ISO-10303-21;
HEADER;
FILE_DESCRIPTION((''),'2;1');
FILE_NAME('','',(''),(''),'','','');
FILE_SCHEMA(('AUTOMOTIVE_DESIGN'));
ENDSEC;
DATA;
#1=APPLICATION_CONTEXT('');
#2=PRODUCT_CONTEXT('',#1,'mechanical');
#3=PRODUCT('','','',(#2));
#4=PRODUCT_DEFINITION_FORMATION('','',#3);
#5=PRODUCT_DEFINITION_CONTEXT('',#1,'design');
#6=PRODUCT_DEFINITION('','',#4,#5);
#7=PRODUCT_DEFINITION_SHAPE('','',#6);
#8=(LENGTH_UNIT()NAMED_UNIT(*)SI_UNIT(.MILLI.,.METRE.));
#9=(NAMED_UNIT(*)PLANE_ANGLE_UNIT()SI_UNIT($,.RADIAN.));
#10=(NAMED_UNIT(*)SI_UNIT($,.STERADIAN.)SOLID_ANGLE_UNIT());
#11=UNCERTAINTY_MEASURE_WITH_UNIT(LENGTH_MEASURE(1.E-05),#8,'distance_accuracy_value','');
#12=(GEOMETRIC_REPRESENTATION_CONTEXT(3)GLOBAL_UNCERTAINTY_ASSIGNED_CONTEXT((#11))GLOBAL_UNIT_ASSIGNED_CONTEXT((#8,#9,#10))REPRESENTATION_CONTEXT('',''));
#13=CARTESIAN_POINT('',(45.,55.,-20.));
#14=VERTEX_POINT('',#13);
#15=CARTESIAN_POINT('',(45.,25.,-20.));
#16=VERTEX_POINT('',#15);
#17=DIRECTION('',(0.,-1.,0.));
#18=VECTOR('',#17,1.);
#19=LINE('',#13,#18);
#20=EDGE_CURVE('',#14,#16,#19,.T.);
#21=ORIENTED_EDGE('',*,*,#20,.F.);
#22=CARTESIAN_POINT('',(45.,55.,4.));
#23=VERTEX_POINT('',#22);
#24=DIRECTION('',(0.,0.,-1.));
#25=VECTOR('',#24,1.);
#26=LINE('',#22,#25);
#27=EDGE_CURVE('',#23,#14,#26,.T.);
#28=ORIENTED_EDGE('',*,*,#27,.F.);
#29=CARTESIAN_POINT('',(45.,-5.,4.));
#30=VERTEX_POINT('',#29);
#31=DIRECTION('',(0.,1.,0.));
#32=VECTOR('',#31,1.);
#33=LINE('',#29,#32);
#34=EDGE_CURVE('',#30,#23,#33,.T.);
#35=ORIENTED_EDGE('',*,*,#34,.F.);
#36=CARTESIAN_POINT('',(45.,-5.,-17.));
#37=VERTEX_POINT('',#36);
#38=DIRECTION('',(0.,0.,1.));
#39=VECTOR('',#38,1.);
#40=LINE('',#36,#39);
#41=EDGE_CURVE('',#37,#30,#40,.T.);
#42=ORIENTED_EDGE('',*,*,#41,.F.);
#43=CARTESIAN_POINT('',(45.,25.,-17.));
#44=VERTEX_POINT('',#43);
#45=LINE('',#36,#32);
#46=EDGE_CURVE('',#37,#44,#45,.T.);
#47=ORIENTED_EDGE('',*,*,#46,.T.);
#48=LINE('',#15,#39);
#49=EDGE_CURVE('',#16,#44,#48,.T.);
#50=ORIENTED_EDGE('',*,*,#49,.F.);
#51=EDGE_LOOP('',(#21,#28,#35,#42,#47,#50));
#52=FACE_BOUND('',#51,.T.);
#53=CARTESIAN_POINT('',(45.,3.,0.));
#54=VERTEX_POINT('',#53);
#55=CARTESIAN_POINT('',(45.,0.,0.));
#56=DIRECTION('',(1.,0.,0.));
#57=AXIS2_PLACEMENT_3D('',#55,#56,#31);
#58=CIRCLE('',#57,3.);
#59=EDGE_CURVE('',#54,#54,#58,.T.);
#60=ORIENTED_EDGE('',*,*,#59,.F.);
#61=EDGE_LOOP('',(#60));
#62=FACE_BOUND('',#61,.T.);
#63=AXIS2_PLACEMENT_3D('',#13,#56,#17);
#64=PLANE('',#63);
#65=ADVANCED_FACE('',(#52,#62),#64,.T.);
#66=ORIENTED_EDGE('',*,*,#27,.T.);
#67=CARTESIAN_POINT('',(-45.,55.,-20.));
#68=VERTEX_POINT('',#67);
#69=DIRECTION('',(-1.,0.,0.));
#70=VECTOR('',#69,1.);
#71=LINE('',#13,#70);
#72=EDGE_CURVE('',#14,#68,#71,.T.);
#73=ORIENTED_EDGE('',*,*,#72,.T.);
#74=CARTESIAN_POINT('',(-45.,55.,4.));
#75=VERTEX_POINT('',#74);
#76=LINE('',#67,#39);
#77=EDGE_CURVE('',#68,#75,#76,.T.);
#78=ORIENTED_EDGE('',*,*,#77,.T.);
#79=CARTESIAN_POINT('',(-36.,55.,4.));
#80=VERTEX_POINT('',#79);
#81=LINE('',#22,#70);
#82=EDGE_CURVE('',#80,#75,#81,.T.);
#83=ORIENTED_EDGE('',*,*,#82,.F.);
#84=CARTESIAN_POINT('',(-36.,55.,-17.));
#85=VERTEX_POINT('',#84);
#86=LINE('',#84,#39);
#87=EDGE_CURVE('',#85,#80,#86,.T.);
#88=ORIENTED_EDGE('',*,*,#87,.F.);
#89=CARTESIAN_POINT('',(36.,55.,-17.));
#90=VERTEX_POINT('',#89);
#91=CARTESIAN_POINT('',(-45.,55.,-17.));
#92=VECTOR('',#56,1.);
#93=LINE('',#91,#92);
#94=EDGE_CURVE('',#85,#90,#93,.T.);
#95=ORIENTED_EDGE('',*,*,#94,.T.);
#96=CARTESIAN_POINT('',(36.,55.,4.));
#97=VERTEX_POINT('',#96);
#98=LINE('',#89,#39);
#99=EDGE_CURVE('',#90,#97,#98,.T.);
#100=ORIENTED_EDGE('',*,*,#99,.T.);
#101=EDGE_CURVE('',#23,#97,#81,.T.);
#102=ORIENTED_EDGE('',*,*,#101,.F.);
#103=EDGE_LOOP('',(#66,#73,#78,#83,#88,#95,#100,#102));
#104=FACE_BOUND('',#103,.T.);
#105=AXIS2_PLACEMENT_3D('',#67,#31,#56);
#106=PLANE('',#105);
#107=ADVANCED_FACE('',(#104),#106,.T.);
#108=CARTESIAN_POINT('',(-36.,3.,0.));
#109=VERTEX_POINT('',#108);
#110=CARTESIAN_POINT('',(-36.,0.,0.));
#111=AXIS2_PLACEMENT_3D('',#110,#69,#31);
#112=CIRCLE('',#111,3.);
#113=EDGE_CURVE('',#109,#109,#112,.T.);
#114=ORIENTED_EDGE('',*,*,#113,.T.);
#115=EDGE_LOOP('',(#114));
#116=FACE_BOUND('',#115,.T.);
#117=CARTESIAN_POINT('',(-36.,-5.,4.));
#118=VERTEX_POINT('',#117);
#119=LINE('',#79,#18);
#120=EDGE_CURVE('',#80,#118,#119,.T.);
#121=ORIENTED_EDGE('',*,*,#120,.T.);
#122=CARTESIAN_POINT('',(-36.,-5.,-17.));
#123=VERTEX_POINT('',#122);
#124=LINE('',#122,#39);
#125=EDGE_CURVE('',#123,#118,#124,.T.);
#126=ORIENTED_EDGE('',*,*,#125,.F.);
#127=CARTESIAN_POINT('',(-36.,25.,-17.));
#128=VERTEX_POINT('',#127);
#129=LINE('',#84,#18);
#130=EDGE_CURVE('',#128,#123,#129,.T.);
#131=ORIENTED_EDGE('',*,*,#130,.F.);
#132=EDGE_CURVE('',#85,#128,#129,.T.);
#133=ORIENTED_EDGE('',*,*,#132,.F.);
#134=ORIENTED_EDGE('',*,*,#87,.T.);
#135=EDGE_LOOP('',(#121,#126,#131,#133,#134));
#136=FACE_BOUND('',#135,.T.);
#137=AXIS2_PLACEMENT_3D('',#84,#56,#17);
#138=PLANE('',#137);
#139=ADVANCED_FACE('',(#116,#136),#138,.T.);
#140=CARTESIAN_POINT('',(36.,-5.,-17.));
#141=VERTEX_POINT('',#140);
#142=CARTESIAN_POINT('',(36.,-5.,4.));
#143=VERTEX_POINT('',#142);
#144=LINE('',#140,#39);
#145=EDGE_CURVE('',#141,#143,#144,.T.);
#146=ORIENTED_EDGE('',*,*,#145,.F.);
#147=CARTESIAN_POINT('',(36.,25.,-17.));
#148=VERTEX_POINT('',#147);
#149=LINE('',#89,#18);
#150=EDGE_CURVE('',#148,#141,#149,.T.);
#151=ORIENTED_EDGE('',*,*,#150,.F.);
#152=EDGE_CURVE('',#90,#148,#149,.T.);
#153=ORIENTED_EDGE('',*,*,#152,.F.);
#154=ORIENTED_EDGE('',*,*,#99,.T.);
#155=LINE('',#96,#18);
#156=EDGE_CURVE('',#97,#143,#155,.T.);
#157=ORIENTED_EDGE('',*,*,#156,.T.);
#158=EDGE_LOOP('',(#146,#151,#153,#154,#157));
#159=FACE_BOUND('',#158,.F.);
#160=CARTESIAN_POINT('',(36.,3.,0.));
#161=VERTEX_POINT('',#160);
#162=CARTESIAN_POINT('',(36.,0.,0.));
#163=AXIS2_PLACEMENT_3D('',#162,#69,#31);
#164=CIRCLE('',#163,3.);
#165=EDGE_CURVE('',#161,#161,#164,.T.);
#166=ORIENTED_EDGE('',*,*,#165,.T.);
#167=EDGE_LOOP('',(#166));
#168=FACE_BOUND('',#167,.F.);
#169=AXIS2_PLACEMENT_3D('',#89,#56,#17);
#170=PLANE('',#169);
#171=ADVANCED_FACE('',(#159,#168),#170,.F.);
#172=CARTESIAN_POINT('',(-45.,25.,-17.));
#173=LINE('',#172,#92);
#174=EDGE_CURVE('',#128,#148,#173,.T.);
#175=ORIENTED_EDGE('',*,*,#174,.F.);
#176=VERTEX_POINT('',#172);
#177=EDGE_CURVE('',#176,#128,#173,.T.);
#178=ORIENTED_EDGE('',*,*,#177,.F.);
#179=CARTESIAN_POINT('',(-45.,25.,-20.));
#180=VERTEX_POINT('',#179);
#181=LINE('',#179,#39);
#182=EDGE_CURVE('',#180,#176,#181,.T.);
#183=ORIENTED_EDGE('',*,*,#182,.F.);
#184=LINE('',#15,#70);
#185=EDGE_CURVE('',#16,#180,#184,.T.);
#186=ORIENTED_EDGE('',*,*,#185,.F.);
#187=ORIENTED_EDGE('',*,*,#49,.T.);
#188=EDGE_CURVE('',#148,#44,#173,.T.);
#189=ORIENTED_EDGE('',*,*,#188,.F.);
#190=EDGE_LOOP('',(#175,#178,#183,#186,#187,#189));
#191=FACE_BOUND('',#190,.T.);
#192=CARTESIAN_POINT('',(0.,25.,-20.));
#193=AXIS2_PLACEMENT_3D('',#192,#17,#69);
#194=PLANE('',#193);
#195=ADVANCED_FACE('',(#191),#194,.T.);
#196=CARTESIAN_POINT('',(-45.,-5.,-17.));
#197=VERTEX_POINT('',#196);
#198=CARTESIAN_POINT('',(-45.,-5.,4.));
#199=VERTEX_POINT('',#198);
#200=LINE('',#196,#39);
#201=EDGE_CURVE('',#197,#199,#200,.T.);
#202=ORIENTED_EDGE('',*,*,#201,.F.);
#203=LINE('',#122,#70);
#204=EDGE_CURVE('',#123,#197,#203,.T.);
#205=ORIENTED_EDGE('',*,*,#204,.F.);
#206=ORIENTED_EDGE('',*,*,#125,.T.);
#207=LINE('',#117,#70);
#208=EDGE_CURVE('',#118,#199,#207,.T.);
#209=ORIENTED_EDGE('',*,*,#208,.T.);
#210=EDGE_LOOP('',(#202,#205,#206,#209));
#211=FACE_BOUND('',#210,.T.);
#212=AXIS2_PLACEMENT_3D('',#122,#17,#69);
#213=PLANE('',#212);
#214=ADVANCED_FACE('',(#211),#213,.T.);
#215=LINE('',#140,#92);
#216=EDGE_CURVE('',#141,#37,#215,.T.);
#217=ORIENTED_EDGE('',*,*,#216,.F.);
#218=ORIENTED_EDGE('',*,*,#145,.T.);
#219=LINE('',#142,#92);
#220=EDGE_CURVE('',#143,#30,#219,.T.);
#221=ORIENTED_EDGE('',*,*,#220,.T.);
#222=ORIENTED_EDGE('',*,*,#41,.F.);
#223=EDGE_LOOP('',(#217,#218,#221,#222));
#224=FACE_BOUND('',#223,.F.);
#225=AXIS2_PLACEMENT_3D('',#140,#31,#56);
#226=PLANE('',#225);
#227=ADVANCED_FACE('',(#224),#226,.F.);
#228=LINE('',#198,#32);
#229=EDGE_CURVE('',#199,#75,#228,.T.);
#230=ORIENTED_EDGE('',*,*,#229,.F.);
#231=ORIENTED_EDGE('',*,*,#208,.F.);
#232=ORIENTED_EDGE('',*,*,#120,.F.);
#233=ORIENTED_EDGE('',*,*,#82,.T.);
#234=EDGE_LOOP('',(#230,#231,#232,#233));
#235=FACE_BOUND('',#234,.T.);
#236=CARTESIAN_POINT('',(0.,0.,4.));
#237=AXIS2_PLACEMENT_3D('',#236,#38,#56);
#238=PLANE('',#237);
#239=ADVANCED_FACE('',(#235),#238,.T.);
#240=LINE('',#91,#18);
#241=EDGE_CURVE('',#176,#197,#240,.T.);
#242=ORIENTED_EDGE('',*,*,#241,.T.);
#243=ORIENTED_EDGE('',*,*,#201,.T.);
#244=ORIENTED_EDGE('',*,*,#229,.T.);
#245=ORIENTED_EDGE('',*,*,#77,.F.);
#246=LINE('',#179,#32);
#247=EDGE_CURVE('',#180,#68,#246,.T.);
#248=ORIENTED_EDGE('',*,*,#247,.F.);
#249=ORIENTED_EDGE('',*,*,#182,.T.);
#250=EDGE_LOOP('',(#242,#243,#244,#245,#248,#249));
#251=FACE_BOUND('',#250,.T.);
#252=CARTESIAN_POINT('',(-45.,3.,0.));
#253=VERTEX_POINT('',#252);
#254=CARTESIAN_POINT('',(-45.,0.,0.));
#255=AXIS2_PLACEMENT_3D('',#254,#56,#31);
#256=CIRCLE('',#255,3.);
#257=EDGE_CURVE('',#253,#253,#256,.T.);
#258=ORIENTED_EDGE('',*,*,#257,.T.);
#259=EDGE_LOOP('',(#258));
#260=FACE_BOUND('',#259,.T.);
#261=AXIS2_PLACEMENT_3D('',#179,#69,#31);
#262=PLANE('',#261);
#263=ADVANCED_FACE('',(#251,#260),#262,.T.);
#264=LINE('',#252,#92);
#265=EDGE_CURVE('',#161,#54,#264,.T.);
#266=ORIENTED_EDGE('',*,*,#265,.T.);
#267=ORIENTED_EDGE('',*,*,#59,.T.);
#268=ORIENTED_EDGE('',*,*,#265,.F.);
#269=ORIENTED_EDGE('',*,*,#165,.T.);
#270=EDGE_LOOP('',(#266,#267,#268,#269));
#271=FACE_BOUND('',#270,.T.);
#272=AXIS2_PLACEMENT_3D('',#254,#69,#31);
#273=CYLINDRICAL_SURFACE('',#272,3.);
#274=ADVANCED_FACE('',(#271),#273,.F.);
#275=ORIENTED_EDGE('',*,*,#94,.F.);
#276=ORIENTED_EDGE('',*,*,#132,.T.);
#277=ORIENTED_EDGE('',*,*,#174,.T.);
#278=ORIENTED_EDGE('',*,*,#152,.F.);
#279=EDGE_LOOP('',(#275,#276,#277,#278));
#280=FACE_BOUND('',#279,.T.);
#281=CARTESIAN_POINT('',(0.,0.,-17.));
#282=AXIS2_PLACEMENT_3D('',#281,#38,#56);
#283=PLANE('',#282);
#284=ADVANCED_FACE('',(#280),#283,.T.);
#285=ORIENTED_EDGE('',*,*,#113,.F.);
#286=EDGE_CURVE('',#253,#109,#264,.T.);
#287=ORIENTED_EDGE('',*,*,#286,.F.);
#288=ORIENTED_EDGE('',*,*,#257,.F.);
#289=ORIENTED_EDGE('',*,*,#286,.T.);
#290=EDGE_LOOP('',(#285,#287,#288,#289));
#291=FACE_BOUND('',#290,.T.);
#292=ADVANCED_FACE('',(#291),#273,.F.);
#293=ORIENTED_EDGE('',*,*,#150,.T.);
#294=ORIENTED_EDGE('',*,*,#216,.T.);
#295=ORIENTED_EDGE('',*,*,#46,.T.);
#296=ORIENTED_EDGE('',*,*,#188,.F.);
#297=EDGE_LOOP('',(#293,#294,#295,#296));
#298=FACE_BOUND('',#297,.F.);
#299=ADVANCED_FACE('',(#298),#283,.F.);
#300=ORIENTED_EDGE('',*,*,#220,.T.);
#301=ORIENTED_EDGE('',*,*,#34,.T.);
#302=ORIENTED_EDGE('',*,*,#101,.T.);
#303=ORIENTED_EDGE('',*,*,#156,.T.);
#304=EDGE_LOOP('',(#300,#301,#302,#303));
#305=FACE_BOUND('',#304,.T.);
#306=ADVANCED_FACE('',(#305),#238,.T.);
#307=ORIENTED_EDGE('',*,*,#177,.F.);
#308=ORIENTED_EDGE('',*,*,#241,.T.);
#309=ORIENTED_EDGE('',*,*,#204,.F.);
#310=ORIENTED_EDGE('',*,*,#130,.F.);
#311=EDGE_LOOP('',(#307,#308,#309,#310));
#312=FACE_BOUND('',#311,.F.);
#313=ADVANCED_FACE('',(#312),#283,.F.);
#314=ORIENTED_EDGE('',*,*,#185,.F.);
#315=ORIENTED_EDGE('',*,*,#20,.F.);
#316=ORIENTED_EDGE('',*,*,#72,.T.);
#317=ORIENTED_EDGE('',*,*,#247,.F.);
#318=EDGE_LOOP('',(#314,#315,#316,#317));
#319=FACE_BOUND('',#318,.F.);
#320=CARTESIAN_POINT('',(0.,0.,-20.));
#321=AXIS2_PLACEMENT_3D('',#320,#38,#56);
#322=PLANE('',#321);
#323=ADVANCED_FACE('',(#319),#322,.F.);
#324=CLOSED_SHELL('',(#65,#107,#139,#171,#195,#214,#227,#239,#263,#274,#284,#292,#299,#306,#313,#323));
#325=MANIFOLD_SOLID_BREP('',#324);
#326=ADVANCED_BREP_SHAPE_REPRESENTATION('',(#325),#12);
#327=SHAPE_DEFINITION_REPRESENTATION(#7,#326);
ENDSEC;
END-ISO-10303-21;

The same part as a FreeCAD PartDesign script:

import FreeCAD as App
import Part
import Sketcher
from FreeCAD import Vector
Q = App.Units.Quantity


def add_polygon(sketch, points):
    """Adds a closed chain of lines whose ends are joined by coincident constraints."""
    first, n = sketch.GeometryCount, len(points)
    for a, b in zip(points, points[1:] + points[:1]):
        sketch.addGeometry(Part.LineSegment(App.Vector(*a, 0), App.Vector(*b, 0)), False)
    for i in range(n):
        sketch.addConstraint(Sketcher.Constraint("Coincident", first + i, 2, first + (i + 1) % n, 1))

doc = App.newDocument("Part")
body = doc.addObject("PartDesign::Body", "Body")

# Sketch on XY plane
sketch1 = body.newObject("Sketcher::SketchObject", "Sketch")
sketch1.AttachmentSupport = (doc.getObject("XY_Plane"), [""])
sketch1.MapMode = "FlatFace"
sketch1.AttachmentOffset = App.Placement(Vector(0, 0, -20), App.Rotation())
add_polygon(sketch1, [(-45, 55), (-45, 25), (45, 25), (45, 55)])  # lines 0-3
sketch1.addConstraint(Sketcher.Constraint("Vertical", 0))
sketch1.addConstraint(Sketcher.Constraint("Horizontal", 1))
sketch1.addConstraint(Sketcher.Constraint("Vertical", 2))
sketch1.addConstraint(Sketcher.Constraint("Horizontal", 3))
sketch1.addConstraint(Sketcher.Constraint("DistanceX", 1, 1, 1, 2, Q("90 mm")))
sketch1.addConstraint(Sketcher.Constraint("DistanceY", 0, 2, 0, 1, Q("30 mm")))
sketch1.addConstraint(Sketcher.Constraint("DistanceY", -1, 1, 2, 2, Q("55 mm")))
sketch1.addConstraint(Sketcher.Constraint("DistanceX", 0, 2, -1, 1, Q("45 mm")))
pad1 = body.newObject("PartDesign::Pad", "Pad")
pad1.Profile = sketch1
pad1.Length = 3

# Sketch on XY plane
sketch2 = body.newObject("Sketcher::SketchObject", "Sketch001")
sketch2.AttachmentSupport = (doc.getObject("XY_Plane"), [""])
sketch2.MapMode = "FlatFace"
sketch2.AttachmentOffset = App.Placement(Vector(0, 0, -17), App.Rotation())
add_polygon(sketch2, [(45, -5), (45, 55), (36, 55), (36, -5)])  # lines 0-3
add_polygon(sketch2, [(-36, -5), (-36, 55), (-45, 55), (-45, -5)])  # lines 4-7
sketch2.addConstraint(Sketcher.Constraint("Vertical", 0))
sketch2.addConstraint(Sketcher.Constraint("Horizontal", 1))
sketch2.addConstraint(Sketcher.Constraint("Vertical", 2))
sketch2.addConstraint(Sketcher.Constraint("Horizontal", 3))
sketch2.addConstraint(Sketcher.Constraint("Vertical", 4))
sketch2.addConstraint(Sketcher.Constraint("Horizontal", 5))
sketch2.addConstraint(Sketcher.Constraint("Vertical", 6))
sketch2.addConstraint(Sketcher.Constraint("Horizontal", 7))
sketch2.addConstraint(Sketcher.Constraint("Symmetric", 1, 2, 4, 2, -2))
sketch2.addConstraint(Sketcher.Constraint("Symmetric", 3, 2, 6, 2, -2))
sketch2.addConstraint(Sketcher.Constraint("DistanceX", 1, 2, 1, 1, Q("9 mm")))
sketch2.addConstraint(Sketcher.Constraint("DistanceY", 0, 1, 0, 2, Q("60 mm")))
sketch2.addConstraint(Sketcher.Constraint("DistanceX", -1, 1, 0, 2, Q("45 mm")))
sketch2.addConstraint(Sketcher.Constraint("DistanceY", -1, 1, 0, 2, Q("55 mm")))
pad2 = body.newObject("PartDesign::Pad", "Pad001")
pad2.Profile = sketch2
pad2.Length = 21

# Sketch on YZ plane
sketch3 = body.newObject("Sketcher::SketchObject", "Sketch002")
sketch3.AttachmentSupport = (doc.getObject("YZ_Plane"), [""])
sketch3.MapMode = "FlatFace"
sketch3.AttachmentOffset = App.Placement(Vector(0, 0, -45), App.Rotation())
sketch3.addGeometry(Part.Circle(Vector(0, 0, 0), Vector(0, 0, 1), 3), False)
sketch3.addConstraint(Sketcher.Constraint("Coincident", 0, 3, -1, 1))
sketch3.addConstraint(Sketcher.Constraint("Diameter", 0, Q("6 mm")))
pocket1 = body.newObject("PartDesign::Pocket", "Pocket")
pocket1.Profile = sketch3
pocket1.Length = 90
pocket1.Reversed = True

doc.recompute()
